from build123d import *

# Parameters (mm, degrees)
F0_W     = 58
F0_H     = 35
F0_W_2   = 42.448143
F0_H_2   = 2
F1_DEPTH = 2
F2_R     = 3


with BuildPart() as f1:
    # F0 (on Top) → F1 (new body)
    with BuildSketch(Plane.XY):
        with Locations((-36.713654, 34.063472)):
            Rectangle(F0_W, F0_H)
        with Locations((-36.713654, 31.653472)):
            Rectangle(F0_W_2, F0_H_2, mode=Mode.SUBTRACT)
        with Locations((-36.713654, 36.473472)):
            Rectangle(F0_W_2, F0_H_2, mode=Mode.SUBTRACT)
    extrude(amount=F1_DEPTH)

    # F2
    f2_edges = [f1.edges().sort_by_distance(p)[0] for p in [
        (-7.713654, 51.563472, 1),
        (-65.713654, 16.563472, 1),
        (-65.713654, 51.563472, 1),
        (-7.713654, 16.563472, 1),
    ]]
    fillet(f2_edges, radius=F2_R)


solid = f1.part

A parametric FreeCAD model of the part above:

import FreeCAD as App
import Part
import Sketcher
from FreeCAD import Vector
Q = App.Units.Quantity


def edges_at(feature, points):
    """Names of the edges that pass closest to the given points."""
    edges = feature.Shape.Edges
    near = lambda p: min(range(len(edges)), key=lambda i: edges[i].distToShape(Part.Vertex(*p))[0])
    return sorted({f"Edge{near(p) + 1}" for p in points})

doc = App.newDocument("Part")
params = doc.addObject("Spreadsheet::Sheet", "Params")
for row, (alias, value) in enumerate([
    ("sketch1_width", "58 mm"),
    ("sketch1_height", "35 mm"),
    ("sketch1_height2", "2 mm"),
    ("pad1_length", "2 mm"),
    ("fillet_radius", "3 mm"),
], start=1):
    params.set(f"A{row}", alias)
    params.set(f"B{row}", "=" + value)
    params.setAlias(f"B{row}", alias)

body = doc.addObject("PartDesign::Body", "Body")

# Sketch on XY plane
sketch1 = body.newObject("Sketcher::SketchObject", "Sketch")
sketch1.AttachmentSupport = (doc.getObject("XY_Plane"), [""])
sketch1.MapMode = "FlatFace"
sketch1.addGeometry(Part.LineSegment(Vector(-65.7, 51.6, 0), Vector(-65.7, 16.6, 0)), False)
sketch1.addGeometry(Part.LineSegment(Vector(-65.7, 16.6, 0), Vector(-7.7, 16.6, 0)), False)
sketch1.addGeometry(Part.LineSegment(Vector(-7.7, 16.6, 0), Vector(-7.7, 51.6, 0)), False)
sketch1.addGeometry(Part.LineSegment(Vector(-7.7, 51.6, 0), Vector(-65.7, 51.6, 0)), False)
sketch1.addGeometry(Part.LineSegment(Vector(-15.5, 30.7, 0), Vector(-57.9, 30.7, 0)), False)
sketch1.addGeometry(Part.LineSegment(Vector(-57.9, 30.7, 0), Vector(-57.9, 32.7, 0)), False)
sketch1.addGeometry(Part.LineSegment(Vector(-57.9, 32.7, 0), Vector(-15.5, 32.7, 0)), False)
sketch1.addGeometry(Part.LineSegment(Vector(-15.5, 32.7, 0), Vector(-15.5, 30.7, 0)), False)
sketch1.addGeometry(Part.LineSegment(Vector(-15.5, 35.5, 0), Vector(-57.9, 35.5, 0)), False)
sketch1.addGeometry(Part.LineSegment(Vector(-57.9, 35.5, 0), Vector(-57.9, 37.5, 0)), False)
sketch1.addGeometry(Part.LineSegment(Vector(-57.9, 37.5, 0), Vector(-15.5, 37.5, 0)), False)
sketch1.addGeometry(Part.LineSegment(Vector(-15.5, 37.5, 0), Vector(-15.5, 35.5, 0)), False)
sketch1.addConstraint(Sketcher.Constraint("Coincident", 0, 2, 1, 1))
sketch1.addConstraint(Sketcher.Constraint("Coincident", 1, 2, 2, 1))
sketch1.addConstraint(Sketcher.Constraint("Coincident", 2, 2, 3, 1))
sketch1.addConstraint(Sketcher.Constraint("Coincident", 3, 2, 0, 1))
sketch1.addConstraint(Sketcher.Constraint("Coincident", 4, 2, 5, 1))
sketch1.addConstraint(Sketcher.Constraint("Coincident", 5, 2, 6, 1))
sketch1.addConstraint(Sketcher.Constraint("Coincident", 6, 2, 7, 1))
sketch1.addConstraint(Sketcher.Constraint("Coincident", 7, 2, 4, 1))
sketch1.addConstraint(Sketcher.Constraint("Coincident", 8, 2, 9, 1))
sketch1.addConstraint(Sketcher.Constraint("Coincident", 9, 2, 10, 1))
sketch1.addConstraint(Sketcher.Constraint("Coincident", 10, 2, 11, 1))
sketch1.addConstraint(Sketcher.Constraint("Coincident", 11, 2, 8, 1))
sketch1.addConstraint(Sketcher.Constraint("Vertical", 0))
sketch1.addConstraint(Sketcher.Constraint("Horizontal", 1))
sketch1.addConstraint(Sketcher.Constraint("Vertical", 2))
sketch1.addConstraint(Sketcher.Constraint("Horizontal", 3))
sketch1.addConstraint(Sketcher.Constraint("Horizontal", 4))
sketch1.addConstraint(Sketcher.Constraint("Vertical", 5))
sketch1.addConstraint(Sketcher.Constraint("Horizontal", 6))
sketch1.addConstraint(Sketcher.Constraint("Vertical", 7))
sketch1.addConstraint(Sketcher.Constraint("Horizontal", 8))
sketch1.addConstraint(Sketcher.Constraint("Vertical", 9))
sketch1.addConstraint(Sketcher.Constraint("Horizontal", 10))
sketch1.addConstraint(Sketcher.Constraint("Vertical", 11))
sketch1.addConstraint(Sketcher.Constraint("Vertical", 5, 2, 8, 2))
sketch1.addConstraint(Sketcher.Constraint("Vertical", 7, 2, 10, 2))
sketch1.addConstraint(Sketcher.Constraint("Equal", 7, 9))
sketch1.addConstraint(Sketcher.Constraint("DistanceX", 1, 1, 1, 2, Q("58 mm")))
sketch1.addConstraint(Sketcher.Constraint("DistanceY", 0, 2, 0, 1, Q("35 mm")))
sketch1.addConstraint(Sketcher.Constraint("DistanceY", 5, 1, 5, 2, Q("2 mm")))
sketch1.addConstraint(Sketcher.Constraint("DistanceY", 0, 2, 4, 2, Q("14.09 mm")))
sketch1.addConstraint(Sketcher.Constraint("DistanceY", 5, 2, 8, 2, Q("2.82 mm")))
sketch1.addConstraint(Sketcher.Constraint("DistanceX", 4, 2, 4, 1, Q("42.448143 mm")))
sketch1.addConstraint(Sketcher.Constraint("DistanceY", -1, 1, 2, 2, Q("51.563472 mm")))
sketch1.addConstraint(Sketcher.Constraint("DistanceX", 0, 2, 4, 2, Q("7.775929 mm")))
sketch1.addConstraint(Sketcher.Constraint("DistanceX", 0, 2, -1, 1, Q("65.713654 mm")))
sketch1.setExpression("Constraints[27]", "Params.sketch1_width")
sketch1.setExpression("Constraints[28]", "Params.sketch1_height")
sketch1.setExpression("Constraints[29]", "Params.sketch1_height2")
pad1 = body.newObject("PartDesign::Pad", "Pad")
pad1.Profile = sketch1
pad1.setExpression("Length", "Params.pad1_length")
doc.recompute()

fillet = body.newObject("PartDesign::Fillet", "Fillet")
fillet.Base = (pad1, edges_at(pad1, [
    (-7.714, 51.563, 1),
    (-65.714, 16.563, 1),
    (-65.714, 51.563, 1),
    (-7.714, 16.563, 1),
]))
fillet.setExpression("Radius", "Params.fillet_radius")

doc.recompute()
